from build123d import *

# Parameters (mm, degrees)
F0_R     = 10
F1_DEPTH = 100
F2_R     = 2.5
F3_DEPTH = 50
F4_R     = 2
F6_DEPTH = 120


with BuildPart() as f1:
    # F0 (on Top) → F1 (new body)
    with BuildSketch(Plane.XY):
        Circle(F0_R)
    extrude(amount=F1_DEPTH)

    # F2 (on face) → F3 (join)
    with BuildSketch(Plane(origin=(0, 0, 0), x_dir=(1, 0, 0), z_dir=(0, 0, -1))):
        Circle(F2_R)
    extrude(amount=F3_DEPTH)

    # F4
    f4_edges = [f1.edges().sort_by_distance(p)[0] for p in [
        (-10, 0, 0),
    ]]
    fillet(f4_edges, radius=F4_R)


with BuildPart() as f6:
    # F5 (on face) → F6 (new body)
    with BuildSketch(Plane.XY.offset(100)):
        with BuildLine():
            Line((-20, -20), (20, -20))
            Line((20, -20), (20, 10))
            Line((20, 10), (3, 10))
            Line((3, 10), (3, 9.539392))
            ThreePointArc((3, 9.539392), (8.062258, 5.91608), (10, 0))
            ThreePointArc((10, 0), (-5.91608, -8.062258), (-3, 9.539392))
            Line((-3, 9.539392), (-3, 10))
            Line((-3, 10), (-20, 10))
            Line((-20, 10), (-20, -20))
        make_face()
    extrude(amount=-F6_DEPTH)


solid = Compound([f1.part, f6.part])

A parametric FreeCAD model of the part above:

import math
import FreeCAD as App
import Part
import Sketcher

V = App.Vector


def edges_at(feature, points):
    """Names of the edges that pass closest to the given points."""
    edges = feature.Shape.Edges
    near = lambda p: min(range(len(edges)), key=lambda i: edges[i].distToShape(Part.Vertex(*p))[0])
    return sorted({f"Edge{near(p) + 1}" for p in points})

doc = App.newDocument("Part")
body = doc.addObject("PartDesign::Body", "Body")

sketch1 = body.newObject("Sketcher::SketchObject", "Sketch")
sketch1.AttachmentSupport = (doc.getObject("XY_Plane"), [""])
sketch1.MapMode = "FlatFace"
sketch1.addGeometry(Part.Circle(V(0, 0, 0), V(0, 0, 1), 10), False)
sketch1.addConstraint([
    Sketcher.Constraint("Coincident", 0, 3, -1, 1),
    Sketcher.Constraint("Diameter", 0, 20.0),
])
pad1 = body.newObject("PartDesign::Pad", "Pad")
pad1.Profile = sketch1
pad1.Length = 100

sketch2 = body.newObject("Sketcher::SketchObject", "Sketch001")
sketch2.AttachmentSupport = (doc.getObject("XY_Plane"), [""])
sketch2.MapMode = "FlatFace"
sketch2.addGeometry(Part.Circle(V(0, 0, 0), V(0, 0, 1), 2.5), False)
sketch2.addConstraint([
    Sketcher.Constraint("Coincident", 0, 3, -1, 1),
    Sketcher.Constraint("Diameter", 0, 5.0),
])
pad2 = body.newObject("PartDesign::Pad", "Pad001")
pad2.Profile = sketch2
pad2.Length = 50
pad2.Reversed = True
doc.recompute()

fillet = body.newObject("PartDesign::Fillet", "Fillet")
fillet.Base = (pad2, edges_at(pad2, [(-10, 0, 0)]))
fillet.Radius = 2
body2 = doc.addObject("PartDesign::Body", "Body001")

sketch3 = body2.newObject("Sketcher::SketchObject", "Sketch002")
sketch3.AttachmentSupport = (doc.getObject("XY_Plane001"), [""])
sketch3.MapMode = "FlatFace"
sketch3.AttachmentOffset = App.Placement(V(0, 0, 100), App.Rotation())
sketch3.addGeometry([
    Part.LineSegment(V(-20, -20, 0), V(20, -20, 0)),
    Part.LineSegment(V(20, -20, 0), V(20, 10, 0)),
    Part.LineSegment(V(20, 10, 0), V(3, 10, 0)),
    Part.LineSegment(V(3, 10, 0), V(3, 9.54, 0)),
    Part.ArcOfCircle(Part.Circle(V(0, 0, 0), V(0, 0, 1), 10), math.radians(0), math.radians(73)),
    Part.ArcOfCircle(Part.Circle(V(0, 0, 0), V(0, 0, 1), 10), math.radians(107), math.radians(360)),
    Part.LineSegment(V(-3, 9.54, 0), V(-3, 10, 0)),
    Part.LineSegment(V(-3, 10, 0), V(-20, 10, 0)),
    Part.LineSegment(V(-20, 10, 0), V(-20, -20, 0)),
], False)
sketch3.addConstraint([
    Sketcher.Constraint("Coincident", 0, 2, 1, 1),
    Sketcher.Constraint("Coincident", 1, 2, 2, 1),
    Sketcher.Constraint("Coincident", 2, 2, 3, 1),
    Sketcher.Constraint("Coincident", 3, 2, 4, 2),
    Sketcher.Constraint("Tangent", 4, 1, 5, 2),
    Sketcher.Constraint("Coincident", 5, 1, 6, 1),
    Sketcher.Constraint("Coincident", 6, 2, 7, 1),
    Sketcher.Constraint("Coincident", 7, 2, 8, 1),
    Sketcher.Constraint("Coincident", 8, 2, 0, 1),
    Sketcher.Constraint("Horizontal", 0),
    Sketcher.Constraint("Vertical", 1),
    Sketcher.Constraint("Horizontal", 2),
    Sketcher.Constraint("Vertical", 3),
    Sketcher.Constraint("Vertical", 6),
    Sketcher.Constraint("Horizontal", 7),
    Sketcher.Constraint("Vertical", 8),
    Sketcher.Constraint("Coincident", 4, 3, -1, 1),
    Sketcher.Constraint("Equal", 4, 5),
    Sketcher.Constraint("Symmetric", 2, 2, 6, 2, -2),
    Sketcher.Constraint("PointOnObject", 4, 1, -1),
    Sketcher.Constraint("Equal", 2, 7),
    Sketcher.Constraint("Radius", 4, 9.999999),
    Sketcher.Constraint("DistanceX", 0, 1, 0, 2, 40.0),
    Sketcher.Constraint("DistanceX", 2, 2, 2, 1, 17.0),
    Sketcher.Constraint("DistanceY", 1, 1, 1, 2, 30.0),
    Sketcher.Constraint("DistanceY", 0, 2, -1, 1, 20.0),
])
pad3 = body2.newObject("PartDesign::Pad", "Pad002")
pad3.Profile = sketch3
pad3.Length = 120
pad3.Reversed = True

doc.recompute()
